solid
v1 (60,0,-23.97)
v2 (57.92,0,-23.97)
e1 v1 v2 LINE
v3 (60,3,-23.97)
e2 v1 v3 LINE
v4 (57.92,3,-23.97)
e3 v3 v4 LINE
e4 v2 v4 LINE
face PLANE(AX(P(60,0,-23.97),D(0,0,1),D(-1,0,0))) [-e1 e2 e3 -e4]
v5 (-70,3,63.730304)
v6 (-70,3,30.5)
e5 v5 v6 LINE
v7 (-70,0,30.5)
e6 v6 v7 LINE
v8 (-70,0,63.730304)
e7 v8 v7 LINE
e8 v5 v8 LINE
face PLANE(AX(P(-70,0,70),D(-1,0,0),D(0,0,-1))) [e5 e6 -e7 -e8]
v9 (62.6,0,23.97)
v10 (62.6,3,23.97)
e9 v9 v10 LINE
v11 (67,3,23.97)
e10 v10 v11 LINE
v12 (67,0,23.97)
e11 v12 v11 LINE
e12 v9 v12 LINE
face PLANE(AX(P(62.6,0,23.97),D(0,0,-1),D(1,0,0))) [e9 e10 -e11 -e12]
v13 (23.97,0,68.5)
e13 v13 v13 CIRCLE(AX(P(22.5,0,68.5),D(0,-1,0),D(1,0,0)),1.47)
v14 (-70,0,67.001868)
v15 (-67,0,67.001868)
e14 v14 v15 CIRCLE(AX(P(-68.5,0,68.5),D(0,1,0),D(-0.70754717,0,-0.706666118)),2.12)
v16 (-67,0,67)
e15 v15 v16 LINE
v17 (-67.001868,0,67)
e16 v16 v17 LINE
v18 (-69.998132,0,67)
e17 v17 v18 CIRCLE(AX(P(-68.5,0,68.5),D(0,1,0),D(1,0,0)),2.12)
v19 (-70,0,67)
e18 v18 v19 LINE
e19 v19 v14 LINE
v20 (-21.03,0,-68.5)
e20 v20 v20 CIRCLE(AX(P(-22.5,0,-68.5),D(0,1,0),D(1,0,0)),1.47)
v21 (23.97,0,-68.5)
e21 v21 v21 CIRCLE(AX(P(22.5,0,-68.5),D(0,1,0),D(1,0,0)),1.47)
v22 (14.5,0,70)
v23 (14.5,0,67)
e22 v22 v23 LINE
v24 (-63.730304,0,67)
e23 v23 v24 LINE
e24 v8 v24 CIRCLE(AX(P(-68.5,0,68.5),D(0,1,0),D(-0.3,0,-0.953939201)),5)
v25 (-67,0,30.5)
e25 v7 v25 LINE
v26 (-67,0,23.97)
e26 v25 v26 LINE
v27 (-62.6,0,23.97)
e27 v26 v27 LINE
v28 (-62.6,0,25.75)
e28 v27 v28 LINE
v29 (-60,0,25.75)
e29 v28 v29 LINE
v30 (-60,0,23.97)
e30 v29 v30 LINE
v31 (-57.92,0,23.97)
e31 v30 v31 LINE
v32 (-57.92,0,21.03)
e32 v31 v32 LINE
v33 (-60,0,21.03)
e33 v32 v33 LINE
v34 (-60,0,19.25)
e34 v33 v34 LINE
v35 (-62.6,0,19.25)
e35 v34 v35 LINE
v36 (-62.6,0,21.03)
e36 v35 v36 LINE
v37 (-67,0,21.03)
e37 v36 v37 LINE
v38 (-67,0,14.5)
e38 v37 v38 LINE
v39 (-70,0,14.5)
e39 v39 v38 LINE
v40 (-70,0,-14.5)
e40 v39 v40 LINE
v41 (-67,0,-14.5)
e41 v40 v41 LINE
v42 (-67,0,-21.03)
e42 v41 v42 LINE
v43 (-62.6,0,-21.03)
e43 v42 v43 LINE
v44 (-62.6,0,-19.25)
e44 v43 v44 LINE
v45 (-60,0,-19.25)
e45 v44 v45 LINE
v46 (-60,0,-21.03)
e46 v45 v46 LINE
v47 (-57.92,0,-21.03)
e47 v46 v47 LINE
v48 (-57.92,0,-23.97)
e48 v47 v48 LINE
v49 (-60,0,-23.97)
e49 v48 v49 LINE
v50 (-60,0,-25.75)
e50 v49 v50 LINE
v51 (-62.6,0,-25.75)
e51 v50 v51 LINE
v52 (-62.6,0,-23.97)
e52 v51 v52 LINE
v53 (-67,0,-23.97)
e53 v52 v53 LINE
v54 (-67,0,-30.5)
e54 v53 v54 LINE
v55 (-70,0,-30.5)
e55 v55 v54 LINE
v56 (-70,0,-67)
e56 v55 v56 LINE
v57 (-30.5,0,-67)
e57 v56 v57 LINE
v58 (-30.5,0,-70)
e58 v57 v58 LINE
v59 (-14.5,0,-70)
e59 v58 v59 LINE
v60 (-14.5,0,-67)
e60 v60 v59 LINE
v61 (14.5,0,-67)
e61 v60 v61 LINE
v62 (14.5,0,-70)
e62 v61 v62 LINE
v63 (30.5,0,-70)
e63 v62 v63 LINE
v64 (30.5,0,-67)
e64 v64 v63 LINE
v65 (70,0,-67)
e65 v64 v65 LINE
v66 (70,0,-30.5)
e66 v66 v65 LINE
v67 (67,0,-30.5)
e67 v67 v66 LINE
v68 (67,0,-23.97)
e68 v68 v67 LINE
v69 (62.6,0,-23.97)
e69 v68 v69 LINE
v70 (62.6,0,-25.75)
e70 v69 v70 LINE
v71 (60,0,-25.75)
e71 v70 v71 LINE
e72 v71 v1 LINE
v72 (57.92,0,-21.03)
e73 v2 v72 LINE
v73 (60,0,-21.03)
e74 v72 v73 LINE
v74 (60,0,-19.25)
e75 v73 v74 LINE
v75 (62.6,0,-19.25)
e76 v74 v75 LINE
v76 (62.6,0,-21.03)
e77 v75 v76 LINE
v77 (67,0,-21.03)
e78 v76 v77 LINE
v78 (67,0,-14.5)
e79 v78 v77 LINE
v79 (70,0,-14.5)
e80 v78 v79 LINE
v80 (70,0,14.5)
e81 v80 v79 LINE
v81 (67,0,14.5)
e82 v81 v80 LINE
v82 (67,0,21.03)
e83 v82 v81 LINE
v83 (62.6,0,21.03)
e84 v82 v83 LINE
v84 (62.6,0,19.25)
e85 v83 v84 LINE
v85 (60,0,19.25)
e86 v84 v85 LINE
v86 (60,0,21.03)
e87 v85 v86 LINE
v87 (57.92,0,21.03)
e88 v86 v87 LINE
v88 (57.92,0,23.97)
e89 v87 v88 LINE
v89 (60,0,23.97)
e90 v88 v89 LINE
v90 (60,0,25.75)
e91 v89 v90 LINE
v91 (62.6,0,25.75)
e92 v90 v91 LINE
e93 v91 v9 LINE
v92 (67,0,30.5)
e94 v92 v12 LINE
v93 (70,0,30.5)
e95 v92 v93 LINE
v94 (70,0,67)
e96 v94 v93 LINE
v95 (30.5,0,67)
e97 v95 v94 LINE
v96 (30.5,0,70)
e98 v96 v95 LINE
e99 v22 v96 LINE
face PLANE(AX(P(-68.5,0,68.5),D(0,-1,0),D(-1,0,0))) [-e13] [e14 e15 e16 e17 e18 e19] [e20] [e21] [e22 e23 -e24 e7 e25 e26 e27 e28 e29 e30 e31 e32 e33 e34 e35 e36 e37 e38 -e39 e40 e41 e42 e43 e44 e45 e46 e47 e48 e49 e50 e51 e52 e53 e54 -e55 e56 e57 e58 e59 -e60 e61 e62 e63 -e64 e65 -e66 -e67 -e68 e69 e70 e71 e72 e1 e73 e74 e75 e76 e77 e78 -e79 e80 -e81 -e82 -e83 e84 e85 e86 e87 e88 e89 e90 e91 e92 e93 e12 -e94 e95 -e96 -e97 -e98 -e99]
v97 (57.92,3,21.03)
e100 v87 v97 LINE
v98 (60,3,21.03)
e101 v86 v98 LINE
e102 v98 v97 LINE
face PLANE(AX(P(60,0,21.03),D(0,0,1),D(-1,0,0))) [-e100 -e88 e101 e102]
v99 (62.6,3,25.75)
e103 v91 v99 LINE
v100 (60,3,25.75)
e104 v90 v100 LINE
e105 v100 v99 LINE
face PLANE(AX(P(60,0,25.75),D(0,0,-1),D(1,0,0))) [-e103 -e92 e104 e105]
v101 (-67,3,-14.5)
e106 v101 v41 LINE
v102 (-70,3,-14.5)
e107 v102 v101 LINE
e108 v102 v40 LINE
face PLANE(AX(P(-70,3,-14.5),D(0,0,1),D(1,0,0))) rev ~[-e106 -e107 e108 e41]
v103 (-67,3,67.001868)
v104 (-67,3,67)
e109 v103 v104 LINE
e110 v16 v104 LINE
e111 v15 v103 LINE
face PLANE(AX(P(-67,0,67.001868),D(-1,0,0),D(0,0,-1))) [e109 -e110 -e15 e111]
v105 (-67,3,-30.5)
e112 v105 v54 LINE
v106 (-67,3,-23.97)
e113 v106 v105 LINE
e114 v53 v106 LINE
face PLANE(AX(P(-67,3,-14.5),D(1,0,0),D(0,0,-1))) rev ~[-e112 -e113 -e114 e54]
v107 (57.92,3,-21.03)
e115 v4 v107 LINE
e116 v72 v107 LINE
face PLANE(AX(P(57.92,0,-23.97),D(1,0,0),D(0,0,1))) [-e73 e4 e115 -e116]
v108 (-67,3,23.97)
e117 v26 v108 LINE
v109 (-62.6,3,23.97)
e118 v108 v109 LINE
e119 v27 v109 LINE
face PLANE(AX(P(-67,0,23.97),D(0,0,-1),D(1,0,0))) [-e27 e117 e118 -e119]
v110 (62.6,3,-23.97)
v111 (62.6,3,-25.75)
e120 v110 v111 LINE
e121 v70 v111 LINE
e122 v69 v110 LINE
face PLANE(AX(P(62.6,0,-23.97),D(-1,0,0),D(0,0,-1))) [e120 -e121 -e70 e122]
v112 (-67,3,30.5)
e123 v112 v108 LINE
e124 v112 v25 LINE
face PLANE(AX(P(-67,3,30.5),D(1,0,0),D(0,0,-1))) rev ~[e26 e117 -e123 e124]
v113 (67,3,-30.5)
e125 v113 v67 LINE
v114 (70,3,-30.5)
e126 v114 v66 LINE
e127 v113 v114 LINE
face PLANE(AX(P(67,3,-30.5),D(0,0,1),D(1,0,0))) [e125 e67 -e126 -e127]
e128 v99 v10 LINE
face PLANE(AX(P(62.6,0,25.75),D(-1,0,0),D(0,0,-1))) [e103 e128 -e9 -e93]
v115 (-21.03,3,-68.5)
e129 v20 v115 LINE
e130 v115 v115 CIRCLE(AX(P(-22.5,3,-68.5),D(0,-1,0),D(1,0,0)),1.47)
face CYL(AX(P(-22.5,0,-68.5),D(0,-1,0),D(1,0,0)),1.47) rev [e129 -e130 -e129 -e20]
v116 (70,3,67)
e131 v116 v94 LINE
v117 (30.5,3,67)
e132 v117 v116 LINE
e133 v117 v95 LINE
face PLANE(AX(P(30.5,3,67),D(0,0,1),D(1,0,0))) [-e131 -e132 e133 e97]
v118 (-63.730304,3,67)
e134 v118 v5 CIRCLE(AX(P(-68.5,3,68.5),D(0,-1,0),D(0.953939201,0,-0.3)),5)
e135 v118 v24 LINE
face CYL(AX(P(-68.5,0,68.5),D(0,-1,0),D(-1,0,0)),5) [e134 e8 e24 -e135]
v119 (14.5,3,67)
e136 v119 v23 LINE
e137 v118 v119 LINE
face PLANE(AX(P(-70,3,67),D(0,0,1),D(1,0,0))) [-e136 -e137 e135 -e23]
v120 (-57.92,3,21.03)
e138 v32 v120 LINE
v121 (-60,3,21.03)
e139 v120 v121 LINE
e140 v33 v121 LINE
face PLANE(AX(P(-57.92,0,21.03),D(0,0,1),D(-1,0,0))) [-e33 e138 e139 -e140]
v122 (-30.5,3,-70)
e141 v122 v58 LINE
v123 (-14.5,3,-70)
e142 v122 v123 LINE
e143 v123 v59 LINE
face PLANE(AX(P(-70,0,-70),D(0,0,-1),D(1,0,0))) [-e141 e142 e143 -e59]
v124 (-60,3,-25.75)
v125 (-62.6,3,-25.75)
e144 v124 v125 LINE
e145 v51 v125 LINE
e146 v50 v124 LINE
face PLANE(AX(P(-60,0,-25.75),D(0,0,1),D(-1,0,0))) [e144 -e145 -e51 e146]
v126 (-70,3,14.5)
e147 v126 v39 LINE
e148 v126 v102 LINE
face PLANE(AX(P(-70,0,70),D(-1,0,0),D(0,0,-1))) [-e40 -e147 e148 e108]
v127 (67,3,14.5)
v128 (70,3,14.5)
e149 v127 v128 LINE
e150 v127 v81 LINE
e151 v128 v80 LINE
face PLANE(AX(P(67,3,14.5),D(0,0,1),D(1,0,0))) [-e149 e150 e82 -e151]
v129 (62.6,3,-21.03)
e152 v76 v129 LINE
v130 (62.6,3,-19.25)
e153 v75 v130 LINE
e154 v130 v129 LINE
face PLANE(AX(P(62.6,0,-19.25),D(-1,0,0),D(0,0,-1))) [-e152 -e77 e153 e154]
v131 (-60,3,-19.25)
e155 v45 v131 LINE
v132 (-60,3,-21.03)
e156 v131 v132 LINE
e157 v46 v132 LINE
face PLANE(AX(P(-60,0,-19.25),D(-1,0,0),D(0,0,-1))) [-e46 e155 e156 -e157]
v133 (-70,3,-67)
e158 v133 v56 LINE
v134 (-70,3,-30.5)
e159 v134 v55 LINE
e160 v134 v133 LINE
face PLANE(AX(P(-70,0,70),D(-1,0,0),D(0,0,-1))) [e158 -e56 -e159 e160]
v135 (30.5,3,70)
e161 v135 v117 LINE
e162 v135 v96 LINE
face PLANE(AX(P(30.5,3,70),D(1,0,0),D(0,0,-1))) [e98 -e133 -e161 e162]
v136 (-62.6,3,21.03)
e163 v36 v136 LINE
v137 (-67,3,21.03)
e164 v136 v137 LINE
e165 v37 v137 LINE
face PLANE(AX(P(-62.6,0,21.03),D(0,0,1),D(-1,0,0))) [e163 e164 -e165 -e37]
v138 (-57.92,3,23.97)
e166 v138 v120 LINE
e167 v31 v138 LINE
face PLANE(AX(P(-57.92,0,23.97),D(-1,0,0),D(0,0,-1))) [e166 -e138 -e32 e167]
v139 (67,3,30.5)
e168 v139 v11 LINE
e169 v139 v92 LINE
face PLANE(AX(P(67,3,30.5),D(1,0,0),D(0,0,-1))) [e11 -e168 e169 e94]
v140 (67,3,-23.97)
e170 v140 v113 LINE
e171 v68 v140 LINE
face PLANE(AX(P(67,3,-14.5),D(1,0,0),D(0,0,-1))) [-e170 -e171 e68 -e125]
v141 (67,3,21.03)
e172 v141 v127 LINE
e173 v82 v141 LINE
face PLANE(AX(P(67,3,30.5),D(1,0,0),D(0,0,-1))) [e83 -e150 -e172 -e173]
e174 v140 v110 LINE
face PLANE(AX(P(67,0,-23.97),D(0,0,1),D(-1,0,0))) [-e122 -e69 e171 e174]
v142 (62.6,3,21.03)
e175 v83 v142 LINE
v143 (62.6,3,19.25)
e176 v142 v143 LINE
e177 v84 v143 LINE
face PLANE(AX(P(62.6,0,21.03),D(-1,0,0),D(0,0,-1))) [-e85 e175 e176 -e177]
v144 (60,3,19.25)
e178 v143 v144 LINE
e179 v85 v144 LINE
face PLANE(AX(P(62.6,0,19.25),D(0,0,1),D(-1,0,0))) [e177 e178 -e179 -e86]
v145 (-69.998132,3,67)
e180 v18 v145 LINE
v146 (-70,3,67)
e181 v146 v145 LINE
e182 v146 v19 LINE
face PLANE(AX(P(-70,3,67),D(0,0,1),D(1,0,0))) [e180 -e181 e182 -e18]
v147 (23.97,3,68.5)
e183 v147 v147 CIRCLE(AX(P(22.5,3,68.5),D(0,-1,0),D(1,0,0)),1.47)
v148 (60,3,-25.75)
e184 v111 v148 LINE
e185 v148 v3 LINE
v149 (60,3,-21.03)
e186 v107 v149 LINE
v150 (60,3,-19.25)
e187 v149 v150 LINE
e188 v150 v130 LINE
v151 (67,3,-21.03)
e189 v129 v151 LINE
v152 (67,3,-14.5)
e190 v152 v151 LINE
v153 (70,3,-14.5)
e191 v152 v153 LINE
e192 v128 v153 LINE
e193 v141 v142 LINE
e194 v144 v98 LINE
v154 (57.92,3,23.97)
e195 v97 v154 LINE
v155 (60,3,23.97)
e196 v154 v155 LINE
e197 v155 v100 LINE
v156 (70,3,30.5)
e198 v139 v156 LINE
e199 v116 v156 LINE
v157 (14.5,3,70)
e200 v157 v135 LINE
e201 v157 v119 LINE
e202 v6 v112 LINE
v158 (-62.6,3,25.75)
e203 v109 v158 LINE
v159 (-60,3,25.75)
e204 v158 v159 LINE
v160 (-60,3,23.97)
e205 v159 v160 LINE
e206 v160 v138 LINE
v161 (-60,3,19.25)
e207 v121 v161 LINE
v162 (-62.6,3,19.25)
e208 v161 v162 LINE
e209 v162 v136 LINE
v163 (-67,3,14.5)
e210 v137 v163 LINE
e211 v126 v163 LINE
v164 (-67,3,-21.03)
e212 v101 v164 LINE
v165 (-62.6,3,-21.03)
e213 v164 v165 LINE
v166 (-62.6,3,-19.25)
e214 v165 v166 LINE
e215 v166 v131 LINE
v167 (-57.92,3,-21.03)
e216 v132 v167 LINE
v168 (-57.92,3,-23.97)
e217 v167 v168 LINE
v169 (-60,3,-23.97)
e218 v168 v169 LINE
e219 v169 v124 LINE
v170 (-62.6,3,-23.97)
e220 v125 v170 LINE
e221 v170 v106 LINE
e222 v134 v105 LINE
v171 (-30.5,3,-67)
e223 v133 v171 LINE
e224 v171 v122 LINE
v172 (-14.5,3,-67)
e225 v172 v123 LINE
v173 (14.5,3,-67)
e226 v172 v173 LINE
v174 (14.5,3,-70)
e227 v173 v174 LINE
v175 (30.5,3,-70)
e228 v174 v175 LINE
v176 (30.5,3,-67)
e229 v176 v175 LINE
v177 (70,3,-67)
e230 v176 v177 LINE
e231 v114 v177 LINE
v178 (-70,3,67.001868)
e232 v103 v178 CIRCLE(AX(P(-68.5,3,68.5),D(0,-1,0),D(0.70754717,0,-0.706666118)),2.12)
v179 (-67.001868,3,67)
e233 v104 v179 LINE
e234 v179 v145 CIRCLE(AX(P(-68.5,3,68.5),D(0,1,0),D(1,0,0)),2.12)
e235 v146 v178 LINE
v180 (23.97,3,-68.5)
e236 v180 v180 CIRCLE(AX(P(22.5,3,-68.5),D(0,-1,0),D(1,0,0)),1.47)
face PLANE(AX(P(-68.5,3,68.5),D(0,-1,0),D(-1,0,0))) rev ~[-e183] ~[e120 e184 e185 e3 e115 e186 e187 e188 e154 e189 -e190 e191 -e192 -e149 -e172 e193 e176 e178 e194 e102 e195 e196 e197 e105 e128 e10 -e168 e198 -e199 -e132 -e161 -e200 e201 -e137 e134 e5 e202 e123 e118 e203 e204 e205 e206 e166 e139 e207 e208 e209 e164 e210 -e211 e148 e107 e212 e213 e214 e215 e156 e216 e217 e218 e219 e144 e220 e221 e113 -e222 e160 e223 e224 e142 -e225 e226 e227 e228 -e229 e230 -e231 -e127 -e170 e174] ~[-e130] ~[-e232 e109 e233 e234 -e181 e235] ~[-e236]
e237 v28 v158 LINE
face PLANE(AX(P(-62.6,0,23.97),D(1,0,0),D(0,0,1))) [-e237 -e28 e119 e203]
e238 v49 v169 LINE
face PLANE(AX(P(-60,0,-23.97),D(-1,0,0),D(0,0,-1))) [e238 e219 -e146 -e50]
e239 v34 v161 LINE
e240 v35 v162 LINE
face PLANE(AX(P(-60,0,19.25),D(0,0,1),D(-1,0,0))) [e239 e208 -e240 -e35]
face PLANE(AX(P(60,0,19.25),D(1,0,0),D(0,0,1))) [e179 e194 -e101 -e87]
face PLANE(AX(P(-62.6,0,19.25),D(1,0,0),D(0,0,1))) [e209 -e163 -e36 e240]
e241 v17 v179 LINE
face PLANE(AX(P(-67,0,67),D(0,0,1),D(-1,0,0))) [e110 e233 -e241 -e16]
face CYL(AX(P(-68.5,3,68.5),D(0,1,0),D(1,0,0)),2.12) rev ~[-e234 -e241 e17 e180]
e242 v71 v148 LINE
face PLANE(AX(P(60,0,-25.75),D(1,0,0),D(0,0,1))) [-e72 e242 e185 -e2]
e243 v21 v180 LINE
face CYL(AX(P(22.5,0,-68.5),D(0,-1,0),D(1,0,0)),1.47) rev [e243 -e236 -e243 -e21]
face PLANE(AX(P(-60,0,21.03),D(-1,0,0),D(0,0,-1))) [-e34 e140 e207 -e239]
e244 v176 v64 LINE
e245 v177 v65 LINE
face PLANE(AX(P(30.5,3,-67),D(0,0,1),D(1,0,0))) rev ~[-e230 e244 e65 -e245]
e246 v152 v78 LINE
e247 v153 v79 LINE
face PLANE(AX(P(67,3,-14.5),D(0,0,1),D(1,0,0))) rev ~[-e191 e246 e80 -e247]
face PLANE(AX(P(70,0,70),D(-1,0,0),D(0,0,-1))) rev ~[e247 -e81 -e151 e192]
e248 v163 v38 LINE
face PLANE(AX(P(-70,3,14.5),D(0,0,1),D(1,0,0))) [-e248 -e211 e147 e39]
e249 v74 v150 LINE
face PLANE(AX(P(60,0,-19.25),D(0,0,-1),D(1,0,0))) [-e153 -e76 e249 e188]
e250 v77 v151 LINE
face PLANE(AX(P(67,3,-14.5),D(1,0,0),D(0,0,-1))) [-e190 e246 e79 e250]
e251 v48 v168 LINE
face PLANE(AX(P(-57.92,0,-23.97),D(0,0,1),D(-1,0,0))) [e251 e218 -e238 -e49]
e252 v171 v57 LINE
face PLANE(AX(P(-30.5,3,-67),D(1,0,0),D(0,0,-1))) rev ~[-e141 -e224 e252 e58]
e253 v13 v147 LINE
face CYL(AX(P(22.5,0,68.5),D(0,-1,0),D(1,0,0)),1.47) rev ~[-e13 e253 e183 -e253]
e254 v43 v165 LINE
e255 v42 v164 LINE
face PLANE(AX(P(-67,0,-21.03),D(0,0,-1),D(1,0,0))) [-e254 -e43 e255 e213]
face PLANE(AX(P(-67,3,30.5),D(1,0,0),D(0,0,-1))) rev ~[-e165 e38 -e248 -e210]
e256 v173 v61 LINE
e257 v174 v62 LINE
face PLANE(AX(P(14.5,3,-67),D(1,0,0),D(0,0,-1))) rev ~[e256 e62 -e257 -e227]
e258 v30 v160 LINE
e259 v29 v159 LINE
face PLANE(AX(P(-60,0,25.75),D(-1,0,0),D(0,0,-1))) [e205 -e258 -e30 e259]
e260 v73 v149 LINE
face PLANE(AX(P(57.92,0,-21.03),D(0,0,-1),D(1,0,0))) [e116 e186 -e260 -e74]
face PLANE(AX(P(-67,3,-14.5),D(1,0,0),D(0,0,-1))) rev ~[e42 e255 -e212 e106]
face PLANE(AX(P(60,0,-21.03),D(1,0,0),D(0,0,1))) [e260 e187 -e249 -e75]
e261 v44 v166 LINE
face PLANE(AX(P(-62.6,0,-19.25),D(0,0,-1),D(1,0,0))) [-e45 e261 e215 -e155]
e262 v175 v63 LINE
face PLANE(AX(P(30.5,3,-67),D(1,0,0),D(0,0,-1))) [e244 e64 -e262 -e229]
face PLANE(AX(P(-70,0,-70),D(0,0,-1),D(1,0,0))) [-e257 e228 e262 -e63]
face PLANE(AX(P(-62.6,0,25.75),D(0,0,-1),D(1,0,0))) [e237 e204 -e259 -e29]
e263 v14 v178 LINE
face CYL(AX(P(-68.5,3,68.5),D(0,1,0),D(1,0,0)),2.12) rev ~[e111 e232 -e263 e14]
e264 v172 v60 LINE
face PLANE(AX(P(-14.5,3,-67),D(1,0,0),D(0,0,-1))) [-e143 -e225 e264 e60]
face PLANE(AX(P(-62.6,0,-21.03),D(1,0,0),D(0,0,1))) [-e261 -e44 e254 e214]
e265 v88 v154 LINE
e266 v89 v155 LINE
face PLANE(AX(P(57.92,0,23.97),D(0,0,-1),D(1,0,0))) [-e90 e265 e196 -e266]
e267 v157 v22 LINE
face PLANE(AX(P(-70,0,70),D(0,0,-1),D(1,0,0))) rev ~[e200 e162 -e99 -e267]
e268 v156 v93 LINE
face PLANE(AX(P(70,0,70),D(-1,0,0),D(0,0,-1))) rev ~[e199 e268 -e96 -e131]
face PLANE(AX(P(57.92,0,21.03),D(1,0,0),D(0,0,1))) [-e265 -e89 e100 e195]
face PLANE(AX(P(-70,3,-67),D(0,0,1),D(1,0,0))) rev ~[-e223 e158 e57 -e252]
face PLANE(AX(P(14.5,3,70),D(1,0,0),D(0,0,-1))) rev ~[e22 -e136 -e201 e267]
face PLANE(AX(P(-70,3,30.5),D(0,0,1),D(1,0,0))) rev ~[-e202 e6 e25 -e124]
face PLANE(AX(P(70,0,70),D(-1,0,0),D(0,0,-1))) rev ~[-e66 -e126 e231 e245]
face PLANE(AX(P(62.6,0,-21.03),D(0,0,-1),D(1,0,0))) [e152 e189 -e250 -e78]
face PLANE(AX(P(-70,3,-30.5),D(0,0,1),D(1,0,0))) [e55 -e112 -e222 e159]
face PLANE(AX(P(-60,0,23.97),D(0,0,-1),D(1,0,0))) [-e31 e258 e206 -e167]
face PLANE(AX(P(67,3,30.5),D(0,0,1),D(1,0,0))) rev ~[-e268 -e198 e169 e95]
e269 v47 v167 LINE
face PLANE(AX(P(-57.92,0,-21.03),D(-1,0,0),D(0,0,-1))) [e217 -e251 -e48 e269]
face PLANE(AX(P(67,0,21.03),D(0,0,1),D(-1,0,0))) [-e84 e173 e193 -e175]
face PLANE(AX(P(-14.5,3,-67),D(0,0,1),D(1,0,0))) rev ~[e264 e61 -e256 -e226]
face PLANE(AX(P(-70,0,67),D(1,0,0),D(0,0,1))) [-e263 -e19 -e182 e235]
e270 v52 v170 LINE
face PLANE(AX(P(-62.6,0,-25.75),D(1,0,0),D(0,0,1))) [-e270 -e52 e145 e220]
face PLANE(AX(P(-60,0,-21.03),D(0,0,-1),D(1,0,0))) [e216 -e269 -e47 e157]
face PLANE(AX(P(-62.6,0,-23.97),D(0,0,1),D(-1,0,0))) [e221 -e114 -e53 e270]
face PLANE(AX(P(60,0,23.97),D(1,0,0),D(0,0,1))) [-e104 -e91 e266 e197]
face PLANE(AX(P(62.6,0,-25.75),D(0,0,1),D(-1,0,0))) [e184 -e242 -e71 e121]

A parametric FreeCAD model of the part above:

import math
import FreeCAD as App
import Part
import Sketcher
Q = App.Units.Quantity

doc = App.newDocument("Part")
body = doc.addObject("PartDesign::Body", "Body")

# Sketch on XZ plane
sketch1 = body.newObject("Sketcher::SketchObject", "Sketch")
sketch1.AttachmentSupport = (doc.getObject("XZ_Plane"), [""])
sketch1.MapMode = "FlatFace"
sketch1.addGeometry([
    Part.LineSegment(App.Vector(-70, -70, 0), App.Vector(-70, 70, 0)),
    Part.LineSegment(App.Vector(-70, 70, 0), App.Vector(70, 70, 0)),
    Part.LineSegment(App.Vector(70, 70, 0), App.Vector(70, -70, 0)),
    Part.LineSegment(App.Vector(70, -70, 0), App.Vector(-70, -70, 0)),
], False)
sketch1.addConstraint([
    Sketcher.Constraint("Coincident", 0, 2, 1, 1),
    Sketcher.Constraint("Coincident", 1, 2, 2, 1),
    Sketcher.Constraint("Coincident", 2, 2, 3, 1),
    Sketcher.Constraint("Coincident", 3, 2, 0, 1),
    Sketcher.Constraint("Vertical", 0),
    Sketcher.Constraint("Horizontal", 1),
    Sketcher.Constraint("Vertical", 2),
    Sketcher.Constraint("Horizontal", 3),
    Sketcher.Constraint("Symmetric", 0, 2, 2, 2, -1, 1),
    Sketcher.Constraint("Equal", 3, 0),
    Sketcher.Constraint("DistanceX", 1, 1, 1, 2, Q("140 mm")),
])
pad1 = body.newObject("PartDesign::Pad", "Pad")
pad1.Profile = sketch1
pad1.Length = 3
pad1.Reversed = True

# Sketch on XZ plane
sketch2 = body.newObject("Sketcher::SketchObject", "Sketch001")
sketch2.AttachmentSupport = (doc.getObject("XZ_Plane"), [""])
sketch2.MapMode = "FlatFace"
sketch2.AttachmentOffset = App.Placement(App.Vector(0, 0, -3), App.Rotation())
sketch2.addGeometry([
    Part.LineSegment(App.Vector(-70, -70, 0), App.Vector(-70, -67, 0)),  # 0
    Part.LineSegment(App.Vector(-70, -67, 0), App.Vector(-30.5, -67, 0)),  # 1
    Part.LineSegment(App.Vector(-30.5, -67, 0), App.Vector(-30.5, -70, 0)),  # 2
    Part.LineSegment(App.Vector(-30.5, -70, 0), App.Vector(-70, -70, 0)),  # 3
    Part.LineSegment(App.Vector(-70, 67, 0), App.Vector(-70, 70, 0)),  # 4
    Part.LineSegment(App.Vector(-70, 70, 0), App.Vector(-30.5, 70, 0)),  # 5
    Part.LineSegment(App.Vector(-30.5, 70, 0), App.Vector(-30.5, 67, 0)),  # 6
    Part.LineSegment(App.Vector(-30.5, 67, 0), App.Vector(-70, 67, 0)),  # 7
    Part.LineSegment(App.Vector(30.5, 67, 0), App.Vector(30.5, 70, 0)),  # 8
    Part.LineSegment(App.Vector(30.5, 70, 0), App.Vector(70, 70, 0)),  # 9
    Part.LineSegment(App.Vector(70, 70, 0), App.Vector(70, 67, 0)),  # 10
    Part.LineSegment(App.Vector(70, 67, 0), App.Vector(30.5, 67, 0)),  # 11
    Part.LineSegment(App.Vector(30.5, -70, 0), App.Vector(30.5, -67, 0)),  # 12
    Part.LineSegment(App.Vector(30.5, -67, 0), App.Vector(70, -67, 0)),  # 13
    Part.LineSegment(App.Vector(70, -67, 0), App.Vector(70, -70, 0)),  # 14
    Part.LineSegment(App.Vector(70, -70, 0), App.Vector(30.5, -70, 0)),  # 15
    Part.LineSegment(App.Vector(-14.5, -70, 0), App.Vector(-14.5, -67, 0)),  # 16
    Part.LineSegment(App.Vector(-14.5, -67, 0), App.Vector(14.5, -67, 0)),  # 17
    Part.LineSegment(App.Vector(14.5, -67, 0), App.Vector(14.5, -70, 0)),  # 18
    Part.LineSegment(App.Vector(14.5, -70, 0), App.Vector(-14.5, -70, 0)),  # 19
    Part.LineSegment(App.Vector(-14.5, 67, 0), App.Vector(-14.5, 70, 0)),  # 20
    Part.LineSegment(App.Vector(-14.5, 70, 0), App.Vector(14.5, 70, 0)),  # 21
    Part.LineSegment(App.Vector(14.5, 70, 0), App.Vector(14.5, 67, 0)),  # 22
    Part.LineSegment(App.Vector(14.5, 67, 0), App.Vector(-14.5, 67, 0)),  # 23
], False)
sketch2.addConstraint([
    Sketcher.Constraint("Coincident", 0, 2, 1, 1),
    Sketcher.Constraint("Coincident", 1, 2, 2, 1),
    Sketcher.Constraint("Coincident", 2, 2, 3, 1),
    Sketcher.Constraint("Coincident", 3, 2, 0, 1),
    Sketcher.Constraint("Coincident", 4, 2, 5, 1),
    Sketcher.Constraint("Coincident", 5, 2, 6, 1),
    Sketcher.Constraint("Coincident", 6, 2, 7, 1),
    Sketcher.Constraint("Coincident", 7, 2, 4, 1),
    Sketcher.Constraint("Coincident", 8, 2, 9, 1),
    Sketcher.Constraint("Coincident", 9, 2, 10, 1),
    Sketcher.Constraint("Coincident", 10, 2, 11, 1),
    Sketcher.Constraint("Coincident", 11, 2, 8, 1),
    Sketcher.Constraint("Coincident", 12, 2, 13, 1),
    Sketcher.Constraint("Coincident", 13, 2, 14, 1),
    Sketcher.Constraint("Coincident", 14, 2, 15, 1),
    Sketcher.Constraint("Coincident", 15, 2, 12, 1),
    Sketcher.Constraint("Coincident", 16, 2, 17, 1),
    Sketcher.Constraint("Coincident", 17, 2, 18, 1),
    Sketcher.Constraint("Coincident", 18, 2, 19, 1),
    Sketcher.Constraint("Coincident", 19, 2, 16, 1),
    Sketcher.Constraint("Coincident", 20, 2, 21, 1),
    Sketcher.Constraint("Coincident", 21, 2, 22, 1),
    Sketcher.Constraint("Coincident", 22, 2, 23, 1),
    Sketcher.Constraint("Coincident", 23, 2, 20, 1),
    Sketcher.Constraint("Vertical", 0),
    Sketcher.Constraint("Horizontal", 1),
    Sketcher.Constraint("Vertical", 2),
    Sketcher.Constraint("Horizontal", 3),
    Sketcher.Constraint("Vertical", 4),
    Sketcher.Constraint("Horizontal", 5),
    Sketcher.Constraint("Vertical", 6),
    Sketcher.Constraint("Horizontal", 7),
    Sketcher.Constraint("Vertical", 8),
    Sketcher.Constraint("Horizontal", 9),
    Sketcher.Constraint("Vertical", 10),
    Sketcher.Constraint("Horizontal", 11),
    Sketcher.Constraint("Vertical", 12),
    Sketcher.Constraint("Horizontal", 13),
    Sketcher.Constraint("Vertical", 14),
    Sketcher.Constraint("Horizontal", 15),
    Sketcher.Constraint("Vertical", 16),
    Sketcher.Constraint("Horizontal", 17),
    Sketcher.Constraint("Vertical", 18),
    Sketcher.Constraint("Horizontal", 19),
    Sketcher.Constraint("Vertical", 20),
    Sketcher.Constraint("Horizontal", 21),
    Sketcher.Constraint("Vertical", 22),
    Sketcher.Constraint("Horizontal", 23),
    Sketcher.Constraint("Symmetric", 2, 2, 8, 2, -1, 1),
    Sketcher.Constraint("Symmetric", 0, 2, 10, 2, -1, 1),
    Sketcher.Constraint("Symmetric", 6, 2, 12, 2, -1, 1),
    Sketcher.Constraint("Symmetric", 4, 2, 14, 2, -1, 1),
    Sketcher.Constraint("Symmetric", 18, 2, 20, 2, -1, 1),
    Sketcher.Constraint("Symmetric", 16, 2, 22, 2, -1, 1),
    Sketcher.Constraint("Symmetric", 5, 2, 8, 2, -2),
    Sketcher.Constraint("Symmetric", 7, 2, 10, 2, -2),
    Sketcher.Constraint("Horizontal", 13, 2, 16, 2),
    Sketcher.Constraint("Horizontal", 15, 2, 18, 2),
    Sketcher.Constraint("Vertical", 19, 2, 20, 2),
    Sketcher.Constraint("DistanceX", 17, 1, 17, 2, Q("29 mm")),
    Sketcher.Constraint("DistanceY", 0, 1, 0, 2, Q("3 mm")),
    Sketcher.Constraint("DistanceX", 1, 1, 1, 2, Q("39.5 mm")),
    Sketcher.Constraint("DistanceX", 0, 2, -1, 1, Q("70 mm")),
    Sketcher.Constraint("DistanceY", 0, 2, -1, 1, Q("67 mm")),
])
pocket1 = body.newObject("PartDesign::Pocket", "Pocket")
pocket1.Profile = sketch2
pocket1.Length = 3
pocket1.Reversed = True

# Sketch on XZ plane
sketch3 = body.newObject("Sketcher::SketchObject", "Sketch002")
sketch3.AttachmentSupport = (doc.getObject("XZ_Plane"), [""])
sketch3.MapMode = "FlatFace"
sketch3.AttachmentOffset = App.Placement(App.Vector(0, 0, -3), App.Rotation())
sketch3.addGeometry([
    Part.LineSegment(App.Vector(-70, -30.5, 0), App.Vector(-70, -14.5, 0)),  # 0
    Part.LineSegment(App.Vector(-70, -14.5, 0), App.Vector(-67, -14.5, 0)),  # 1
    Part.LineSegment(App.Vector(-67, -14.5, 0), App.Vector(-67, -30.5, 0)),  # 2
    Part.LineSegment(App.Vector(-67, -30.5, 0), App.Vector(-70, -30.5, 0)),  # 3
    Part.LineSegment(App.Vector(-70, 14.5, 0), App.Vector(-70, 30.5, 0)),  # 4
    Part.LineSegment(App.Vector(-70, 30.5, 0), App.Vector(-67, 30.5, 0)),  # 5
    Part.LineSegment(App.Vector(-67, 30.5, 0), App.Vector(-67, 14.5, 0)),  # 6
    Part.LineSegment(App.Vector(-67, 14.5, 0), App.Vector(-70, 14.5, 0)),  # 7
    Part.LineSegment(App.Vector(67, -30.5, 0), App.Vector(67, -14.5, 0)),  # 8
    Part.LineSegment(App.Vector(67, -14.5, 0), App.Vector(70, -14.5, 0)),  # 9
    Part.LineSegment(App.Vector(70, -14.5, 0), App.Vector(70, -30.5, 0)),  # 10
    Part.LineSegment(App.Vector(70, -30.5, 0), App.Vector(67, -30.5, 0)),  # 11
    Part.LineSegment(App.Vector(67, 14.5, 0), App.Vector(67, 30.5, 0)),  # 12
    Part.LineSegment(App.Vector(67, 30.5, 0), App.Vector(70, 30.5, 0)),  # 13
    Part.LineSegment(App.Vector(70, 30.5, 0), App.Vector(70, 14.5, 0)),  # 14
    Part.LineSegment(App.Vector(70, 14.5, 0), App.Vector(67, 14.5, 0)),  # 15
], False)
sketch3.addConstraint([
    Sketcher.Constraint("Coincident", 0, 2, 1, 1),
    Sketcher.Constraint("Coincident", 1, 2, 2, 1),
    Sketcher.Constraint("Coincident", 2, 2, 3, 1),
    Sketcher.Constraint("Coincident", 3, 2, 0, 1),
    Sketcher.Constraint("Coincident", 4, 2, 5, 1),
    Sketcher.Constraint("Coincident", 5, 2, 6, 1),
    Sketcher.Constraint("Coincident", 6, 2, 7, 1),
    Sketcher.Constraint("Coincident", 7, 2, 4, 1),
    Sketcher.Constraint("Coincident", 8, 2, 9, 1),
    Sketcher.Constraint("Coincident", 9, 2, 10, 1),
    Sketcher.Constraint("Coincident", 10, 2, 11, 1),
    Sketcher.Constraint("Coincident", 11, 2, 8, 1),
    Sketcher.Constraint("Coincident", 12, 2, 13, 1),
    Sketcher.Constraint("Coincident", 13, 2, 14, 1),
    Sketcher.Constraint("Coincident", 14, 2, 15, 1),
    Sketcher.Constraint("Coincident", 15, 2, 12, 1),
    Sketcher.Constraint("Vertical", 0),
    Sketcher.Constraint("Horizontal", 1),
    Sketcher.Constraint("Vertical", 2),
    Sketcher.Constraint("Horizontal", 3),
    Sketcher.Constraint("Vertical", 4),
    Sketcher.Constraint("Horizontal", 5),
    Sketcher.Constraint("Vertical", 6),
    Sketcher.Constraint("Horizontal", 7),
    Sketcher.Constraint("Vertical", 8),
    Sketcher.Constraint("Horizontal", 9),
    Sketcher.Constraint("Vertical", 10),
    Sketcher.Constraint("Horizontal", 11),
    Sketcher.Constraint("Vertical", 12),
    Sketcher.Constraint("Horizontal", 13),
    Sketcher.Constraint("Vertical", 14),
    Sketcher.Constraint("Horizontal", 15),
    Sketcher.Constraint("Symmetric", 6, 2, 8, 2, -1, 1),
    Sketcher.Constraint("Symmetric", 4, 2, 10, 2, -1, 1),
    Sketcher.Constraint("Symmetric", 2, 2, 12, 2, -1, 1),
    Sketcher.Constraint("Symmetric", 0, 2, 14, 2, -1, 1),
    Sketcher.Constraint("Symmetric", 1, 2, 8, 2, -2),
    Sketcher.Constraint("Symmetric", 3, 2, 10, 2, -2),
    Sketcher.Constraint("DistanceX", 1, 1, 1, 2, Q("3 mm")),
    Sketcher.Constraint("DistanceY", 0, 1, 0, 2, Q("16 mm")),
    Sketcher.Constraint("DistanceX", 0, 2, -1, 1, Q("70 mm")),
    Sketcher.Constraint("DistanceY", 0, 2, 4, 2, Q("45 mm")),
])
pocket2 = body.newObject("PartDesign::Pocket", "Pocket001")
pocket2.Profile = sketch3
pocket2.Length = 3
pocket2.Reversed = True

# Sketch on XZ plane
sketch4 = body.newObject("Sketcher::SketchObject", "Sketch003")
sketch4.AttachmentSupport = (doc.getObject("XZ_Plane"), [""])
sketch4.MapMode = "FlatFace"
sketch4.addGeometry([
    Part.Circle(App.Vector(-22.5, 68.5, 0), App.Vector(0, 0, 1), 1.47),
    Part.Circle(App.Vector(22.5, 68.5, 0), App.Vector(0, 0, 1), 1.47),
], False)
sketch4.addConstraint([
    Sketcher.Constraint("Equal", 0, 1),
    Sketcher.Constraint("Symmetric", 0, 3, 1, 3, -2),
    Sketcher.Constraint("Diameter", 0, Q("2.94 mm")),
    Sketcher.Constraint("DistanceX", 0, 3, 1, 3, Q("45 mm")),
    Sketcher.Constraint("DistanceY", -1, 1, 0, 3, Q("68.5 mm")),
])
pocket3 = body.newObject("PartDesign::Pocket", "Pocket002")
pocket3.Profile = sketch4
pocket3.Type = "ThroughAll"
doc.recompute()

mirrored = body.newObject("PartDesign::Mirrored", "Mirrored")
mirrored.Originals = [pocket3]
mirrored.MirrorPlane = (doc.getObject("XY_Plane"), [""])
body.Tip = mirrored

# Sketch on XZ plane
sketch5 = body.newObject("Sketcher::SketchObject", "Sketch004")
sketch5.AttachmentSupport = (doc.getObject("XZ_Plane"), [""])
sketch5.MapMode = "FlatFace"
sketch5.addGeometry([
    Part.LineSegment(App.Vector(-62.6, 23.97, 0), App.Vector(-67, 23.97, 0)),  # 0
    Part.LineSegment(App.Vector(-67, 23.97, 0), App.Vector(-67, 21.03, 0)),  # 1
    Part.LineSegment(App.Vector(-67, 21.03, 0), App.Vector(-62.6, 21.03, 0)),  # 2
    Part.LineSegment(App.Vector(-62.6, 21.03, 0), App.Vector(-62.6, 19.25, 0)),  # 3
    Part.LineSegment(App.Vector(-62.6, 19.25, 0), App.Vector(-60, 19.25, 0)),  # 4
    Part.LineSegment(App.Vector(-60, 19.25, 0), App.Vector(-60, 21.03, 0)),  # 5
    Part.LineSegment(App.Vector(-60, 21.03, 0), App.Vector(-57.92, 21.03, 0)),  # 6
    Part.LineSegment(App.Vector(-57.92, 21.03, 0), App.Vector(-57.92, 23.97, 0)),  # 7
    Part.LineSegment(App.Vector(-57.92, 23.97, 0), App.Vector(-60, 23.97, 0)),  # 8
    Part.LineSegment(App.Vector(-60, 23.97, 0), App.Vector(-60, 25.75, 0)),  # 9
    Part.LineSegment(App.Vector(-60, 25.75, 0), App.Vector(-62.6, 25.75, 0)),  # 10
    Part.LineSegment(App.Vector(-62.6, 25.75, 0), App.Vector(-62.6, 23.97, 0)),  # 11
    Part.LineSegment(App.Vector(67, 21.03, 0), App.Vector(67, 23.97, 0)),  # 12
    Part.LineSegment(App.Vector(67, 23.97, 0), App.Vector(62.6, 23.97, 0)),  # 13
    Part.LineSegment(App.Vector(62.6, 23.97, 0), App.Vector(62.6, 25.75, 0)),  # 14
    Part.LineSegment(App.Vector(62.6, 25.75, 0), App.Vector(60, 25.75, 0)),  # 15
    Part.LineSegment(App.Vector(60, 25.75, 0), App.Vector(60, 23.97, 0)),  # 16
    Part.LineSegment(App.Vector(60, 23.97, 0), App.Vector(57.92, 23.97, 0)),  # 17
    Part.LineSegment(App.Vector(57.92, 23.97, 0), App.Vector(57.92, 21.03, 0)),  # 18
    Part.LineSegment(App.Vector(57.92, 21.03, 0), App.Vector(60, 21.03, 0)),  # 19
    Part.LineSegment(App.Vector(60, 21.03, 0), App.Vector(60, 19.25, 0)),  # 20
    Part.LineSegment(App.Vector(60, 19.25, 0), App.Vector(62.6, 19.25, 0)),  # 21
    Part.LineSegment(App.Vector(62.6, 19.25, 0), App.Vector(62.6, 21.03, 0)),  # 22
    Part.LineSegment(App.Vector(62.6, 21.03, 0), App.Vector(67, 21.03, 0)),  # 23
    Part.LineSegment(App.Vector(62.6, -23.97, 0), App.Vector(67, -23.97, 0)),  # 24
    Part.LineSegment(App.Vector(67, -23.97, 0), App.Vector(67, -21.03, 0)),  # 25
    Part.LineSegment(App.Vector(67, -21.03, 0), App.Vector(62.6, -21.03, 0)),  # 26
    Part.LineSegment(App.Vector(62.6, -21.03, 0), App.Vector(62.6, -19.25, 0)),  # 27
    Part.LineSegment(App.Vector(62.6, -19.25, 0), App.Vector(60, -19.25, 0)),  # 28
    Part.LineSegment(App.Vector(60, -19.25, 0), App.Vector(60, -21.03, 0)),  # 29
    Part.LineSegment(App.Vector(60, -21.03, 0), App.Vector(57.92, -21.03, 0)),  # 30
    Part.LineSegment(App.Vector(57.92, -21.03, 0), App.Vector(57.92, -23.97, 0)),  # 31
    Part.LineSegment(App.Vector(57.92, -23.97, 0), App.Vector(60, -23.97, 0)),  # 32
    Part.LineSegment(App.Vector(60, -23.97, 0), App.Vector(60, -25.75, 0)),  # 33
    Part.LineSegment(App.Vector(60, -25.75, 0), App.Vector(62.6, -25.75, 0)),  # 34
    Part.LineSegment(App.Vector(62.6, -25.75, 0), App.Vector(62.6, -23.97, 0)),  # 35
    Part.LineSegment(App.Vector(-67, -21.03, 0), App.Vector(-67, -23.97, 0)),  # 36
    Part.LineSegment(App.Vector(-67, -23.97, 0), App.Vector(-62.6, -23.97, 0)),  # 37
    Part.LineSegment(App.Vector(-62.6, -23.97, 0), App.Vector(-62.6, -25.75, 0)),  # 38
    Part.LineSegment(App.Vector(-62.6, -25.75, 0), App.Vector(-60, -25.75, 0)),  # 39
    Part.LineSegment(App.Vector(-60, -25.75, 0), App.Vector(-60, -23.97, 0)),  # 40
    Part.LineSegment(App.Vector(-60, -23.97, 0), App.Vector(-57.92, -23.97, 0)),  # 41
    Part.LineSegment(App.Vector(-57.92, -23.97, 0), App.Vector(-57.92, -21.03, 0)),  # 42
    Part.LineSegment(App.Vector(-57.92, -21.03, 0), App.Vector(-60, -21.03, 0)),  # 43
    Part.LineSegment(App.Vector(-60, -21.03, 0), App.Vector(-60, -19.25, 0)),  # 44
    Part.LineSegment(App.Vector(-60, -19.25, 0), App.Vector(-62.6, -19.25, 0)),  # 45
    Part.LineSegment(App.Vector(-62.6, -19.25, 0), App.Vector(-62.6, -21.03, 0)),  # 46
    Part.LineSegment(App.Vector(-62.6, -21.03, 0), App.Vector(-67, -21.03, 0)),  # 47
], False)
sketch5.addConstraint([
    Sketcher.Constraint("Coincident", 0, 2, 1, 1),
    Sketcher.Constraint("Coincident", 1, 2, 2, 1),
    Sketcher.Constraint("Coincident", 2, 2, 3, 1),
    Sketcher.Constraint("Coincident", 3, 2, 4, 1),
    Sketcher.Constraint("Coincident", 4, 2, 5, 1),
    Sketcher.Constraint("Coincident", 5, 2, 6, 1),
    Sketcher.Constraint("Coincident", 6, 2, 7, 1),
    Sketcher.Constraint("Coincident", 7, 2, 8, 1),
    Sketcher.Constraint("Coincident", 8, 2, 9, 1),
    Sketcher.Constraint("Coincident", 9, 2, 10, 1),
    Sketcher.Constraint("Coincident", 10, 2, 11, 1),
    Sketcher.Constraint("Coincident", 11, 2, 0, 1),
    Sketcher.Constraint("Coincident", 12, 2, 13, 1),
    Sketcher.Constraint("Coincident", 13, 2, 14, 1),
    Sketcher.Constraint("Coincident", 14, 2, 15, 1),
    Sketcher.Constraint("Coincident", 15, 2, 16, 1),
    Sketcher.Constraint("Coincident", 16, 2, 17, 1),
    Sketcher.Constraint("Coincident", 17, 2, 18, 1),
    Sketcher.Constraint("Coincident", 18, 2, 19, 1),
    Sketcher.Constraint("Coincident", 19, 2, 20, 1),
    Sketcher.Constraint("Coincident", 20, 2, 21, 1),
    Sketcher.Constraint("Coincident", 21, 2, 22, 1),
    Sketcher.Constraint("Coincident", 22, 2, 23, 1),
    Sketcher.Constraint("Coincident", 23, 2, 12, 1),
    Sketcher.Constraint("Coincident", 24, 2, 25, 1),
    Sketcher.Constraint("Coincident", 25, 2, 26, 1),
    Sketcher.Constraint("Coincident", 26, 2, 27, 1),
    Sketcher.Constraint("Coincident", 27, 2, 28, 1),
    Sketcher.Constraint("Coincident", 28, 2, 29, 1),
    Sketcher.Constraint("Coincident", 29, 2, 30, 1),
    Sketcher.Constraint("Coincident", 30, 2, 31, 1),
    Sketcher.Constraint("Coincident", 31, 2, 32, 1),
    Sketcher.Constraint("Coincident", 32, 2, 33, 1),
    Sketcher.Constraint("Coincident", 33, 2, 34, 1),
    Sketcher.Constraint("Coincident", 34, 2, 35, 1),
    Sketcher.Constraint("Coincident", 35, 2, 24, 1),
    Sketcher.Constraint("Coincident", 36, 2, 37, 1),
    Sketcher.Constraint("Coincident", 37, 2, 38, 1),
    Sketcher.Constraint("Coincident", 38, 2, 39, 1),
    Sketcher.Constraint("Coincident", 39, 2, 40, 1),
    Sketcher.Constraint("Coincident", 40, 2, 41, 1),
    Sketcher.Constraint("Coincident", 41, 2, 42, 1),
    Sketcher.Constraint("Coincident", 42, 2, 43, 1),
    Sketcher.Constraint("Coincident", 43, 2, 44, 1),
    Sketcher.Constraint("Coincident", 44, 2, 45, 1),
    Sketcher.Constraint("Coincident", 45, 2, 46, 1),
    Sketcher.Constraint("Coincident", 46, 2, 47, 1),
    Sketcher.Constraint("Coincident", 47, 2, 36, 1),
    Sketcher.Constraint("Horizontal", 0),
    Sketcher.Constraint("Vertical", 1),
    Sketcher.Constraint("Horizontal", 2),
    Sketcher.Constraint("Vertical", 3),
    Sketcher.Constraint("Horizontal", 4),
    Sketcher.Constraint("Vertical", 5),
    Sketcher.Constraint("Horizontal", 6),
    Sketcher.Constraint("Vertical", 7),
    Sketcher.Constraint("Horizontal", 8),
    Sketcher.Constraint("Vertical", 9),
    Sketcher.Constraint("Horizontal", 10),
    Sketcher.Constraint("Vertical", 11),
    Sketcher.Constraint("Vertical", 12),
    Sketcher.Constraint("Horizontal", 13),
    Sketcher.Constraint("Vertical", 14),
    Sketcher.Constraint("Horizontal", 15),
    Sketcher.Constraint("Vertical", 16),
    Sketcher.Constraint("Horizontal", 17),
    Sketcher.Constraint("Vertical", 18),
    Sketcher.Constraint("Horizontal", 19),
    Sketcher.Constraint("Vertical", 20),
    Sketcher.Constraint("Horizontal", 21),
    Sketcher.Constraint("Vertical", 22),
    Sketcher.Constraint("Horizontal", 23),
    Sketcher.Constraint("Horizontal", 24),
    Sketcher.Constraint("Vertical", 25),
    Sketcher.Constraint("Horizontal", 26),
    Sketcher.Constraint("Vertical", 27),
    Sketcher.Constraint("Horizontal", 28),
    Sketcher.Constraint("Vertical", 29),
    Sketcher.Constraint("Horizontal", 30),
    Sketcher.Constraint("Vertical", 31),
    Sketcher.Constraint("Horizontal", 32),
    Sketcher.Constraint("Vertical", 33),
    Sketcher.Constraint("Horizontal", 34),
    Sketcher.Constraint("Vertical", 35),
    Sketcher.Constraint("Vertical", 36),
    Sketcher.Constraint("Horizontal", 37),
    Sketcher.Constraint("Vertical", 38),
    Sketcher.Constraint("Horizontal", 39),
    Sketcher.Constraint("Vertical", 40),
    Sketcher.Constraint("Horizontal", 41),
    Sketcher.Constraint("Vertical", 42),
    Sketcher.Constraint("Horizontal", 43),
    Sketcher.Constraint("Vertical", 44),
    Sketcher.Constraint("Horizontal", 45),
    Sketcher.Constraint("Vertical", 46),
    Sketcher.Constraint("Horizontal", 47),
    Sketcher.Constraint("Symmetric", 0, 2, 24, 2, -1, 1),
    Sketcher.Constraint("Symmetric", 2, 2, 26, 2, -1, 1),
    Sketcher.Constraint("Symmetric", 4, 2, 28, 2, -1, 1),
    Sketcher.Constraint("Symmetric", 6, 2, 30, 2, -1, 1),
    Sketcher.Constraint("Symmetric", 8, 2, 32, 2, -1, 1),
    Sketcher.Constraint("Symmetric", 10, 2, 34, 2, -1, 1),
    Sketcher.Constraint("Symmetric", 12, 2, 36, 2, -1, 1),
    Sketcher.Constraint("Symmetric", 14, 2, 38, 2, -1, 1),
    Sketcher.Constraint("Symmetric", 16, 2, 40, 2, -1, 1),
    Sketcher.Constraint("Symmetric", 18, 2, 42, 2, -1, 1),
    Sketcher.Constraint("Symmetric", 20, 2, 44, 2, -1, 1),
    Sketcher.Constraint("Symmetric", 22, 2, 46, 2, -1, 1),
    Sketcher.Constraint("Symmetric", 0, 2, 12, 2, -2),
    Sketcher.Constraint("Symmetric", 10, 2, 14, 2, -2),
    Sketcher.Constraint("Symmetric", 8, 2, 16, 2, -2),
    Sketcher.Constraint("Symmetric", 6, 2, 18, 2, -2),
    Sketcher.Constraint("Symmetric", 4, 2, 20, 2, -2),
    Sketcher.Constraint("Symmetric", 2, 2, 22, 2, -2),
    Sketcher.Constraint("Horizontal", 2, 2, 5, 2),
    Sketcher.Constraint("Horizontal", 0, 2, 7, 2),
    Sketcher.Constraint("Vertical", 5, 2, 8, 2),
    Sketcher.Constraint("Vertical", 3, 2, 10, 2),
    Sketcher.Constraint("Equal", 5, 9),
    Sketcher.Constraint("DistanceX", 0, 2, 0, 1, Q("4.4 mm")),
    Sketcher.Constraint("DistanceX", 4, 1, 4, 2, Q("2.6 mm")),
    Sketcher.Constraint("DistanceX", 0, 2, -1, 1, Q("67 mm")),
    Sketcher.Constraint("DistanceY", 24, 2, 23, 2, Q("45 mm")),
    Sketcher.Constraint("DistanceX", 6, 1, 6, 2, Q("2.08 mm")),
    Sketcher.Constraint("DistanceY", 1, 2, 1, 1, Q("2.94 mm")),
    Sketcher.Constraint("DistanceY", 3, 2, 3, 1, Q("1.78 mm")),
])
pocket4 = body.newObject("PartDesign::Pocket", "Pocket003")
pocket4.Profile = sketch5
pocket4.Length = 3

# Sketch on XZ plane
sketch6 = body.newObject("Sketcher::SketchObject", "Sketch005")
sketch6.AttachmentSupport = (doc.getObject("XZ_Plane"), [""])
sketch6.MapMode = "FlatFace"
sketch6.addGeometry([
    Part.LineSegment(App.Vector(-14.5, 67, 0), App.Vector(-14.5, 70, 0)),
    Part.LineSegment(App.Vector(-14.5, 70, 0), App.Vector(-30.5, 70, 0)),
    Part.LineSegment(App.Vector(-30.5, 70, 0), App.Vector(-30.5, 67, 0)),
    Part.LineSegment(App.Vector(-30.5, 67, 0), App.Vector(-14.5, 67, 0)),
], False)
sketch6.addConstraint([
    Sketcher.Constraint("Coincident", 0, 2, 1, 1),
    Sketcher.Constraint("Coincident", 1, 2, 2, 1),
    Sketcher.Constraint("Coincident", 2, 2, 3, 1),
    Sketcher.Constraint("Coincident", 3, 2, 0, 1),
    Sketcher.Constraint("Vertical", 0),
    Sketcher.Constraint("Horizontal", 1),
    Sketcher.Constraint("Vertical", 2),
    Sketcher.Constraint("Horizontal", 3),
    Sketcher.Constraint("DistanceX", 1, 2, 1, 1, Q("16 mm")),
    Sketcher.Constraint("DistanceY", 0, 1, 0, 2, Q("3 mm")),
    Sketcher.Constraint("DistanceY", -1, 1, 0, 2, Q("70 mm")),
    Sketcher.Constraint("DistanceX", 0, 2, -1, 1, Q("14.5 mm")),
])
pocket5 = body.newObject("PartDesign::Pocket", "Pocket004")
pocket5.Profile = sketch6
pocket5.Length = 3

# Sketch on XZ plane
sketch7 = body.newObject("Sketcher::SketchObject", "Sketch006")
sketch7.AttachmentSupport = (doc.getObject("XZ_Plane"), [""])
sketch7.MapMode = "FlatFace"
sketch7.addGeometry([
    Part.Circle(App.Vector(-68.5, 68.5, 0), App.Vector(0, 0, 1), 5),  # 0
    Part.ArcOfCircle(Part.Circle(App.Vector(-68.499554, 68.499554, 0), App.Vector(0, 0, 1), 2.11937), math.radians(-45.035706), math.radians(-44.964294)),  # 1
    Part.LineSegment(App.Vector(-67, 67.001868, 0), App.Vector(-67, 67, 0)),  # 2
    Part.LineSegment(App.Vector(-67, 67, 0), App.Vector(-67.001868, 67, 0)),  # 3
    Part.ArcOfCircle(Part.Circle(App.Vector(-68.500446, 68.499554, 0), App.Vector(0, 0, 1), 2.11937), math.radians(-135.035706), math.radians(-134.964294)),  # 4
    Part.LineSegment(App.Vector(-69.998132, 67, 0), App.Vector(-70, 67, 0)),  # 5
    Part.LineSegment(App.Vector(-70, 67, 0), App.Vector(-70, 67.001868, 0)),  # 6
    Part.LineSegment(App.Vector(-69.998132, 67, 0), App.Vector(-67.001868, 67, 0)),  # 7
    Part.ArcOfCircle(Part.Circle(App.Vector(-68.5, 68.5, 0), App.Vector(0, 0, 1), 2.12), math.radians(-134.964305), math.radians(-45.035695)),  # 8
], False)
sketch7.addConstraint([
    Sketcher.Constraint("Coincident", 1, 2, 2, 1),
    Sketcher.Constraint("Coincident", 2, 2, 3, 1),
    Sketcher.Constraint("Coincident", 3, 2, 1, 1),
    Sketcher.Constraint("Coincident", 4, 2, 5, 1),
    Sketcher.Constraint("Coincident", 5, 2, 6, 1),
    Sketcher.Constraint("Coincident", 6, 2, 4, 1),
    Sketcher.Constraint("Coincident", 7, 1, 8, 1),
    Sketcher.Constraint("Coincident", 8, 2, 7, 2),
    Sketcher.Constraint("Vertical", 2),
    Sketcher.Constraint("Horizontal", 3),
    Sketcher.Constraint("Horizontal", 5),
    Sketcher.Constraint("Vertical", 6),
    Sketcher.Constraint("Horizontal", 7),
    Sketcher.Constraint("Coincident", 8, 3, 0, 3),
    Sketcher.Constraint("Coincident", 7, 1, 4, 2),
    Sketcher.Constraint("Coincident", 8, 2, 3, 2),
    Sketcher.Constraint("Equal", 1, 4),
    Sketcher.Constraint("Horizontal", 1, 3, 4, 3),
    Sketcher.Constraint("Horizontal", 1, 2, 6, 2),
    Sketcher.Constraint("Diameter", 0, Q("10 mm")),
    Sketcher.Constraint("Radius", 8, Q("2.12 mm")),
    Sketcher.Constraint("DistanceX", 1, 2, -1, 1, Q("67 mm")),
    Sketcher.Constraint("DistanceY", -1, 1, 2, 2, Q("67 mm")),
    Sketcher.Constraint("DistanceX", 5, 2, -1, 1, Q("70 mm")),
    Sketcher.Constraint("DistanceY", -1, 1, 0, 3, Q("68.5 mm")),
    Sketcher.Constraint("Radius", 1, Q("2.11937 mm")),
    Sketcher.Constraint("DistanceX", 4, 3, 1, 3, Q("0.000891 mm")),
])
pad2 = body.newObject("PartDesign::Pad", "Pad001")
pad2.Profile = sketch7
pad2.Length = 3
pad2.Reversed = True

# Sketch on XZ plane
sketch8 = body.newObject("Sketcher::SketchObject", "Sketch007")
sketch8.AttachmentSupport = (doc.getObject("XZ_Plane"), [""])
sketch8.MapMode = "FlatFace"
sketch8.AttachmentOffset = App.Placement(App.Vector(0, 0, -3), App.Rotation())
sketch8.addGeometry(Part.Circle(App.Vector(-68.5, 68.5, 0), App.Vector(0, 0, 1), 2.12), False)
sketch8.addConstraint([
    Sketcher.Constraint("Diameter", 0, Q("4.24 mm")),
    Sketcher.Constraint("DistanceX", 0, 3, -1, 1, Q("68.5 mm")),
    Sketcher.Constraint("DistanceY", -1, 1, 0, 3, Q("68.5 mm")),
])
pocket6 = body.newObject("PartDesign::Pocket", "Pocket005")
pocket6.Profile = sketch8
pocket6.Length = 3
pocket6.Reversed = True

doc.recompute()
